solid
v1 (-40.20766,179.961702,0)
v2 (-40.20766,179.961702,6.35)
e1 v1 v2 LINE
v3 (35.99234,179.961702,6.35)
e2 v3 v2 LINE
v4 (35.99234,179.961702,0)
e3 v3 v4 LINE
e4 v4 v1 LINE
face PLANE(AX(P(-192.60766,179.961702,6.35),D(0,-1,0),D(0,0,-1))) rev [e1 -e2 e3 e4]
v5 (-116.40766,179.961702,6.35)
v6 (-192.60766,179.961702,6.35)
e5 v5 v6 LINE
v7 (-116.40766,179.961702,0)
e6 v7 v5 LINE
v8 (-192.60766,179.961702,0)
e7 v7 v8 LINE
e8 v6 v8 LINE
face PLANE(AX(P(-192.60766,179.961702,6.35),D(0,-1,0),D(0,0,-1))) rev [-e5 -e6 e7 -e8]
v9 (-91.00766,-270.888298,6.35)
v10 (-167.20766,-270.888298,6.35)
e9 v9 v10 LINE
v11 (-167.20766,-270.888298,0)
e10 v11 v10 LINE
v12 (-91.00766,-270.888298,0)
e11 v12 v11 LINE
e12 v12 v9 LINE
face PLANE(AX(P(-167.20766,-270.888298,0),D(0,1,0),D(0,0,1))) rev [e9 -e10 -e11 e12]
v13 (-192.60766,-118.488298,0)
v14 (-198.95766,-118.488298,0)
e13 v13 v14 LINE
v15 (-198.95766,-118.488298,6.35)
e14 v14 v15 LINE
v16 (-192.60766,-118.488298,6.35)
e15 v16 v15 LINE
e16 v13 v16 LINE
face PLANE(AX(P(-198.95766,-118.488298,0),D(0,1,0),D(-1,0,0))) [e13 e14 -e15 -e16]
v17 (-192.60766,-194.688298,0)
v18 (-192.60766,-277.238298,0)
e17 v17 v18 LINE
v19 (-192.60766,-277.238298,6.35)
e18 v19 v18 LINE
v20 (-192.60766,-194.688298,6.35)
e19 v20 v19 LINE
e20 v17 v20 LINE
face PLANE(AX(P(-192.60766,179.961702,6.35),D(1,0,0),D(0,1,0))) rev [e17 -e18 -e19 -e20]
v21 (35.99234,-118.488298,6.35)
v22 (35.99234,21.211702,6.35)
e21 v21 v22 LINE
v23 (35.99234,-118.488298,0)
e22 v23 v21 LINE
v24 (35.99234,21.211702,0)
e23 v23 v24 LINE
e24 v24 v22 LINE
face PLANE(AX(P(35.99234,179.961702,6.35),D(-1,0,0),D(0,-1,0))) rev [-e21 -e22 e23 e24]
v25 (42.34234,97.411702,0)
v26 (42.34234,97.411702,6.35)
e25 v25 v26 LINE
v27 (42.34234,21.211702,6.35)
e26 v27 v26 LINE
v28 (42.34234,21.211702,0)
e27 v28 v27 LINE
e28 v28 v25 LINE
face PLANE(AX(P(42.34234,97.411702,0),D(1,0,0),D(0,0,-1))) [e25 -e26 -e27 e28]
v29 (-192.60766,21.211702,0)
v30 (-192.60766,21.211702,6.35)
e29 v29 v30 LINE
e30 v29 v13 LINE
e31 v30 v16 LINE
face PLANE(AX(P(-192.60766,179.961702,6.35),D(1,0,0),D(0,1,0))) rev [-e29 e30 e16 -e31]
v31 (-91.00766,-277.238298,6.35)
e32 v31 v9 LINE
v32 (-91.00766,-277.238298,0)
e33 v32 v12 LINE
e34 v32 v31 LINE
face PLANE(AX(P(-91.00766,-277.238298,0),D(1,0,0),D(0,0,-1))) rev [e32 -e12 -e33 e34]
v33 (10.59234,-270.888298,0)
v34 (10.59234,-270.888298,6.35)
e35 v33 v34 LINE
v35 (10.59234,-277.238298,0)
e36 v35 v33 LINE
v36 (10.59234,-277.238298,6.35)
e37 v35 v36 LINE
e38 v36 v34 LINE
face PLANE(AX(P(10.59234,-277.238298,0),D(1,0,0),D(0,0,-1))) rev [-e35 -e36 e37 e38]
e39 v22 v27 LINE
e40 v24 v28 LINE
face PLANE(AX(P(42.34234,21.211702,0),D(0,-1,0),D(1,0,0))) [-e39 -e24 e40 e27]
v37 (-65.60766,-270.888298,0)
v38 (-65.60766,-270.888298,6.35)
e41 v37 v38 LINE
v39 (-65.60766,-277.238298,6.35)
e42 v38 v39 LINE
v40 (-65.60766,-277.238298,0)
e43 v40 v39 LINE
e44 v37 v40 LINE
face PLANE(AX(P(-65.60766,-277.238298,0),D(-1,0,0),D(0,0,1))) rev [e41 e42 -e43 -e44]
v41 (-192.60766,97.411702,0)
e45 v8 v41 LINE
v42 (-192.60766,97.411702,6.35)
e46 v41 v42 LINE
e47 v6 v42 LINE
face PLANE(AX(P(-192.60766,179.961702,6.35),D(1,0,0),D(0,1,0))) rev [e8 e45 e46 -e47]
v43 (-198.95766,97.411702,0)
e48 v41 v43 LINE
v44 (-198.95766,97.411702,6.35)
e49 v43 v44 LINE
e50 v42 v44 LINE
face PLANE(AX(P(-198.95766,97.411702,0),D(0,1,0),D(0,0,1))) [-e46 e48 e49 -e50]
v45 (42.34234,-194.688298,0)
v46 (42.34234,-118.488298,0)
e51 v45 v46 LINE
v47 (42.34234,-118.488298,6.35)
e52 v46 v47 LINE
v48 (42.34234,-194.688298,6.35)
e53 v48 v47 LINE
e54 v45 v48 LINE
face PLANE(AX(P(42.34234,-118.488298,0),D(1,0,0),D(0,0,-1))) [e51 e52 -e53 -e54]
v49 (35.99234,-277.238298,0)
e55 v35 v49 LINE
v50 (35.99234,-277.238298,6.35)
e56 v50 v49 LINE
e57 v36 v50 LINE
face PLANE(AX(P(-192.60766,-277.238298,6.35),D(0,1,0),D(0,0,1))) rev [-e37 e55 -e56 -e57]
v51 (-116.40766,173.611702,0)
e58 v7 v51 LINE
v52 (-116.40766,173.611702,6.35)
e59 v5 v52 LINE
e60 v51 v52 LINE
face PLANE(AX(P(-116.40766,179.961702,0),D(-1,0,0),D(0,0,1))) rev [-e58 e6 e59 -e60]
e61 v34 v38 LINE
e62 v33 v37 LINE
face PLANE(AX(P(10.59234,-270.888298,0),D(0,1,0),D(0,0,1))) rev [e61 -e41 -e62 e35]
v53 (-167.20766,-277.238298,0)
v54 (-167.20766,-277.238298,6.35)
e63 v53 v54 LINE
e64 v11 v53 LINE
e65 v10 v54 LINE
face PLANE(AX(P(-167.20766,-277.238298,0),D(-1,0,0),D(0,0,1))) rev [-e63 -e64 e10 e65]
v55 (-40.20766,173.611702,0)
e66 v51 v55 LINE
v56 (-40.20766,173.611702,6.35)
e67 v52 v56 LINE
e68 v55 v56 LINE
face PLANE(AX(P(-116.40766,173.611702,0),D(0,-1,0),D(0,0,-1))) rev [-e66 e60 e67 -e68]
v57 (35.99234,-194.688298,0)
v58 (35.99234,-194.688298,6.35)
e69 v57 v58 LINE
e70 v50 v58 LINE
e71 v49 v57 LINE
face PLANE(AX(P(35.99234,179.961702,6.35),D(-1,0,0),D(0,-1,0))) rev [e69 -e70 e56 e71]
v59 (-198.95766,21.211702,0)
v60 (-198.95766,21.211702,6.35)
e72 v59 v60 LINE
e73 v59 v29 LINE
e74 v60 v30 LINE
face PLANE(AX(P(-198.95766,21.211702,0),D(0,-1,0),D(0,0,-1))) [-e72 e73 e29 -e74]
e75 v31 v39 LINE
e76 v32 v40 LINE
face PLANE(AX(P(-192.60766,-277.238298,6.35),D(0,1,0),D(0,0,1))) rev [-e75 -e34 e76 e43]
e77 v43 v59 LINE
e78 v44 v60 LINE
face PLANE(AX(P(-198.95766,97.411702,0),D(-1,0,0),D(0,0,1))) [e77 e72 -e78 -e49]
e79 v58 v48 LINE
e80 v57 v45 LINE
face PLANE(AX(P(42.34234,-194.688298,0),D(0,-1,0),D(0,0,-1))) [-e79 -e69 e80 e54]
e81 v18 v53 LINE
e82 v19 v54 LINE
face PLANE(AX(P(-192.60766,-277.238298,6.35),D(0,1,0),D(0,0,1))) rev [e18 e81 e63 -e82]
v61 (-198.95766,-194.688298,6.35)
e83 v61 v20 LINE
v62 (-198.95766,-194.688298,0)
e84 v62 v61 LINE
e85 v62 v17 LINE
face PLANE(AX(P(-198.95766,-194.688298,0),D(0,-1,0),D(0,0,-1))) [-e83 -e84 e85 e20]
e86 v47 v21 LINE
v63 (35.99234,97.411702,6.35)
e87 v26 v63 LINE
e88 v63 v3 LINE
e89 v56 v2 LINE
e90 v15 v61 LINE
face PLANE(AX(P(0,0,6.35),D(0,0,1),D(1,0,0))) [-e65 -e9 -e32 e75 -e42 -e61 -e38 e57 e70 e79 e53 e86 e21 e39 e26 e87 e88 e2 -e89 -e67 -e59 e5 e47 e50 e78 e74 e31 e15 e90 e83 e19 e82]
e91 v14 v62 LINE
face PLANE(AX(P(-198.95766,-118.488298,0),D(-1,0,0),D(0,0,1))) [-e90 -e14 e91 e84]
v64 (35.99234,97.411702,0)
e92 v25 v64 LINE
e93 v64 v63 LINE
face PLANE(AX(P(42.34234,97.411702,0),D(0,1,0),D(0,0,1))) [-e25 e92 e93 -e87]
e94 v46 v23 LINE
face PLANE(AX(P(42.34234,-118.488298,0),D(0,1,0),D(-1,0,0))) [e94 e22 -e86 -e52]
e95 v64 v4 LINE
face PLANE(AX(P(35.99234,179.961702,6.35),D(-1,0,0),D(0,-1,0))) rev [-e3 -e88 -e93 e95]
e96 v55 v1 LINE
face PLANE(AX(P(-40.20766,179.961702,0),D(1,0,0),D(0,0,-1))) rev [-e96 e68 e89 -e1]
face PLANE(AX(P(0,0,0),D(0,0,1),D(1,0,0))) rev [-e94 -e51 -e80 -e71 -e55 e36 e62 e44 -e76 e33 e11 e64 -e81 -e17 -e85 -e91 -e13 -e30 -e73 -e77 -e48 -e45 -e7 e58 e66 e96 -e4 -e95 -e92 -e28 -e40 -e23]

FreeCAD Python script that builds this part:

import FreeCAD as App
import Part
import Sketcher
Q = App.Units.Quantity

doc = App.newDocument("Part")
body = doc.addObject("PartDesign::Body", "Body")

# Sketch on XY plane
sketch1 = doc.addObject("Sketcher::SketchObject", "Sketch")
body.addObject(sketch1)
sketch1.AttachmentSupport = (doc.XY_Plane, [""])
sketch1.MapMode = "FlatFace"
sketch1.addGeometry(Part.LineSegment(App.Vector(-193, 180, 0), App.Vector(-193, -277, 0)), False)
sketch1.addGeometry(Part.LineSegment(App.Vector(-193, -277, 0), App.Vector(36, -277, 0)), False)
sketch1.addGeometry(Part.LineSegment(App.Vector(36, -277, 0), App.Vector(36, 180, 0)), False)
sketch1.addGeometry(Part.LineSegment(App.Vector(36, 180, 0), App.Vector(-193, 180, 0)), False)
sketch1.addConstraint(Sketcher.Constraint("Coincident", 0, 2, 1, 1))
sketch1.addConstraint(Sketcher.Constraint("Coincident", 1, 2, 2, 1))
sketch1.addConstraint(Sketcher.Constraint("Coincident", 2, 2, 3, 1))
sketch1.addConstraint(Sketcher.Constraint("Coincident", 3, 2, 0, 1))
sketch1.addConstraint(Sketcher.Constraint("Vertical", 0))
sketch1.addConstraint(Sketcher.Constraint("Horizontal", 1))
sketch1.addConstraint(Sketcher.Constraint("Vertical", 2))
sketch1.addConstraint(Sketcher.Constraint("Horizontal", 3))
sketch1.addConstraint(Sketcher.Constraint("DistanceX", 1, 1, 1, 2, Q("9 in")))
sketch1.addConstraint(Sketcher.Constraint("DistanceY", 0, 2, 0, 1, Q("18 in")))
sketch1.addConstraint(Sketcher.Constraint("DistanceX", 0, 2, -1, 1, 192.60766))
sketch1.addConstraint(Sketcher.Constraint("DistanceY", 0, 2, -1, 1, 277.238298))
pad1 = doc.addObject("PartDesign::Pad", "Pad")
body.addObject(pad1)
pad1.Profile = sketch1
pad1.Length = Q("0.25 in")

# Sketch on XY plane
sketch2 = doc.addObject("Sketcher::SketchObject", "Sketch001")
body.addObject(sketch2)
sketch2.AttachmentSupport = (doc.XY_Plane, [""])
sketch2.MapMode = "FlatFace"
sketch2.AttachmentOffset = App.Placement(App.Vector(0, 0, 0.25 * 25.4), App.Rotation())
sketch2.addGeometry(Part.LineSegment(App.Vector(-199, 97, 0), App.Vector(-199, 21, 0)), False)
sketch2.addGeometry(Part.LineSegment(App.Vector(-199, 21, 0), App.Vector(-193, 21, 0)), False)
sketch2.addGeometry(Part.LineSegment(App.Vector(-193, 21, 0), App.Vector(-193, 97, 0)), False)
sketch2.addGeometry(Part.LineSegment(App.Vector(-193, 97, 0), App.Vector(-199, 97, 0)), False)
sketch2.addGeometry(Part.LineSegment(App.Vector(-199, -118, 0), App.Vector(-199, -195, 0)), False)
sketch2.addGeometry(Part.LineSegment(App.Vector(-199, -195, 0), App.Vector(-193, -195, 0)), False)
sketch2.addGeometry(Part.LineSegment(App.Vector(-193, -195, 0), App.Vector(-193, -118, 0)), False)
sketch2.addGeometry(Part.LineSegment(App.Vector(-193, -118, 0), App.Vector(-199, -118, 0)), False)
sketch2.addGeometry(Part.LineSegment(App.Vector(36, -118, 0), App.Vector(36, -195, 0)), False)
sketch2.addGeometry(Part.LineSegment(App.Vector(36, -195, 0), App.Vector(42, -195, 0)), False)
sketch2.addGeometry(Part.LineSegment(App.Vector(42, -195, 0), App.Vector(42, -118, 0)), False)
sketch2.addGeometry(Part.LineSegment(App.Vector(42, -118, 0), App.Vector(36, -118, 0)), False)
sketch2.addGeometry(Part.LineSegment(App.Vector(36, 97, 0), App.Vector(36, 21, 0)), False)
sketch2.addGeometry(Part.LineSegment(App.Vector(36, 21, 0), App.Vector(42, 21, 0)), False)
sketch2.addGeometry(Part.LineSegment(App.Vector(42, 21, 0), App.Vector(42, 97, 0)), False)
sketch2.addGeometry(Part.LineSegment(App.Vector(42, 97, 0), App.Vector(36, 97, 0)), False)
sketch2.addConstraint(Sketcher.Constraint("Coincident", 0, 2, 1, 1))
sketch2.addConstraint(Sketcher.Constraint("Coincident", 1, 2, 2, 1))
sketch2.addConstraint(Sketcher.Constraint("Coincident", 2, 2, 3, 1))
sketch2.addConstraint(Sketcher.Constraint("Coincident", 3, 2, 0, 1))
sketch2.addConstraint(Sketcher.Constraint("Coincident", 4, 2, 5, 1))
sketch2.addConstraint(Sketcher.Constraint("Coincident", 5, 2, 6, 1))
sketch2.addConstraint(Sketcher.Constraint("Coincident", 6, 2, 7, 1))
sketch2.addConstraint(Sketcher.Constraint("Coincident", 7, 2, 4, 1))
sketch2.addConstraint(Sketcher.Constraint("Coincident", 8, 2, 9, 1))
sketch2.addConstraint(Sketcher.Constraint("Coincident", 9, 2, 10, 1))
sketch2.addConstraint(Sketcher.Constraint("Coincident", 10, 2, 11, 1))
sketch2.addConstraint(Sketcher.Constraint("Coincident", 11, 2, 8, 1))
sketch2.addConstraint(Sketcher.Constraint("Coincident", 12, 2, 13, 1))
sketch2.addConstraint(Sketcher.Constraint("Coincident", 13, 2, 14, 1))
sketch2.addConstraint(Sketcher.Constraint("Coincident", 14, 2, 15, 1))
sketch2.addConstraint(Sketcher.Constraint("Coincident", 15, 2, 12, 1))
sketch2.addConstraint(Sketcher.Constraint("Vertical", 0))
sketch2.addConstraint(Sketcher.Constraint("Horizontal", 1))
sketch2.addConstraint(Sketcher.Constraint("Vertical", 2))
sketch2.addConstraint(Sketcher.Constraint("Horizontal", 3))
sketch2.addConstraint(Sketcher.Constraint("Vertical", 4))
sketch2.addConstraint(Sketcher.Constraint("Horizontal", 5))
sketch2.addConstraint(Sketcher.Constraint("Vertical", 6))
sketch2.addConstraint(Sketcher.Constraint("Horizontal", 7))
sketch2.addConstraint(Sketcher.Constraint("Vertical", 8))
sketch2.addConstraint(Sketcher.Constraint("Horizontal", 9))
sketch2.addConstraint(Sketcher.Constraint("Vertical", 10))
sketch2.addConstraint(Sketcher.Constraint("Horizontal", 11))
sketch2.addConstraint(Sketcher.Constraint("Vertical", 12))
sketch2.addConstraint(Sketcher.Constraint("Horizontal", 13))
sketch2.addConstraint(Sketcher.Constraint("Vertical", 14))
sketch2.addConstraint(Sketcher.Constraint("Horizontal", 15))
sketch2.addConstraint(Sketcher.Constraint("Horizontal", 5, 2, 8, 2))
sketch2.addConstraint(Sketcher.Constraint("Horizontal", 7, 2, 10, 2))
sketch2.addConstraint(Sketcher.Constraint("Horizontal", 1, 2, 12, 2))
sketch2.addConstraint(Sketcher.Constraint("Horizontal", 3, 2, 14, 2))
sketch2.addConstraint(Sketcher.Constraint("Vertical", 3, 2, 4, 2))
sketch2.addConstraint(Sketcher.Constraint("Vertical", 2, 2, 5, 2))
sketch2.addConstraint(Sketcher.Constraint("Vertical", 11, 2, 12, 2))
sketch2.addConstraint(Sketcher.Constraint("Vertical", 10, 2, 13, 2))
sketch2.addConstraint(Sketcher.Constraint("Equal", 7, 9))
sketch2.addConstraint(Sketcher.Constraint("Equal", 2, 4))
sketch2.addConstraint(Sketcher.Constraint("DistanceY", 0, 2, 0, 1, Q("3 in")))
sketch2.addConstraint(Sketcher.Constraint("DistanceX", 5, 2, 8, 2, Q("9 in")))
sketch2.addConstraint(Sketcher.Constraint("DistanceX", 1, 1, 1, 2, Q("0.25 in")))
sketch2.addConstraint(Sketcher.Constraint("DistanceY", 4, 2, 0, 2, Q("8.5 in")))
sketch2.addConstraint(Sketcher.Constraint("DistanceX", 0, 2, -1, 1, 198.95766))
sketch2.addConstraint(Sketcher.Constraint("DistanceY", -1, 1, 0, 2, 21.211702))
pad2 = doc.addObject("PartDesign::Pad", "Pad001")
body.addObject(pad2)
pad2.Profile = sketch2
pad2.Type = "UpToLast"
pad2.Reversed = True

# Sketch on XY plane
sketch3 = doc.addObject("Sketcher::SketchObject", "Sketch002")
body.addObject(sketch3)
sketch3.AttachmentSupport = (doc.XY_Plane, [""])
sketch3.MapMode = "FlatFace"
sketch3.AttachmentOffset = App.Placement(App.Vector(0, 0, 0.25 * 25.4), App.Rotation())
sketch3.addGeometry(Part.LineSegment(App.Vector(-167, -271, 0), App.Vector(-167, -277, 0)), False)
sketch3.addGeometry(Part.LineSegment(App.Vector(-167, -277, 0), App.Vector(-91, -277, 0)), False)
sketch3.addGeometry(Part.LineSegment(App.Vector(-91, -277, 0), App.Vector(-91, -271, 0)), False)
sketch3.addGeometry(Part.LineSegment(App.Vector(-91, -271, 0), App.Vector(-167, -271, 0)), False)
sketch3.addGeometry(Part.LineSegment(App.Vector(-66, -271, 0), App.Vector(-66, -277, 0)), False)
sketch3.addGeometry(Part.LineSegment(App.Vector(-66, -277, 0), App.Vector(11, -277, 0)), False)
sketch3.addGeometry(Part.LineSegment(App.Vector(11, -277, 0), App.Vector(11, -271, 0)), False)
sketch3.addGeometry(Part.LineSegment(App.Vector(11, -271, 0), App.Vector(-66, -271, 0)), False)
sketch3.addGeometry(Part.LineSegment(App.Vector(-116, 180, 0), App.Vector(-116, 174, 0)), False)
sketch3.addGeometry(Part.LineSegment(App.Vector(-116, 174, 0), App.Vector(-40, 174, 0)), False)
sketch3.addGeometry(Part.LineSegment(App.Vector(-40, 174, 0), App.Vector(-40, 180, 0)), False)
sketch3.addGeometry(Part.LineSegment(App.Vector(-40, 180, 0), App.Vector(-116, 180, 0)), False)
sketch3.addConstraint(Sketcher.Constraint("Coincident", 0, 2, 1, 1))
sketch3.addConstraint(Sketcher.Constraint("Coincident", 1, 2, 2, 1))
sketch3.addConstraint(Sketcher.Constraint("Coincident", 2, 2, 3, 1))
sketch3.addConstraint(Sketcher.Constraint("Coincident", 3, 2, 0, 1))
sketch3.addConstraint(Sketcher.Constraint("Coincident", 4, 2, 5, 1))
sketch3.addConstraint(Sketcher.Constraint("Coincident", 5, 2, 6, 1))
sketch3.addConstraint(Sketcher.Constraint("Coincident", 6, 2, 7, 1))
sketch3.addConstraint(Sketcher.Constraint("Coincident", 7, 2, 4, 1))
sketch3.addConstraint(Sketcher.Constraint("Coincident", 8, 2, 9, 1))
sketch3.addConstraint(Sketcher.Constraint("Coincident", 9, 2, 10, 1))
sketch3.addConstraint(Sketcher.Constraint("Coincident", 10, 2, 11, 1))
sketch3.addConstraint(Sketcher.Constraint("Coincident", 11, 2, 8, 1))
sketch3.addConstraint(Sketcher.Constraint("Vertical", 0))
sketch3.addConstraint(Sketcher.Constraint("Horizontal", 1))
sketch3.addConstraint(Sketcher.Constraint("Vertical", 2))
sketch3.addConstraint(Sketcher.Constraint("Horizontal", 3))
sketch3.addConstraint(Sketcher.Constraint("Vertical", 4))
sketch3.addConstraint(Sketcher.Constraint("Horizontal", 5))
sketch3.addConstraint(Sketcher.Constraint("Vertical", 6))
sketch3.addConstraint(Sketcher.Constraint("Horizontal", 7))
sketch3.addConstraint(Sketcher.Constraint("Vertical", 8))
sketch3.addConstraint(Sketcher.Constraint("Horizontal", 9))
sketch3.addConstraint(Sketcher.Constraint("Vertical", 10))
sketch3.addConstraint(Sketcher.Constraint("Horizontal", 11))
sketch3.addConstraint(Sketcher.Constraint("Horizontal", 1, 2, 4, 2))
sketch3.addConstraint(Sketcher.Constraint("Horizontal", 3, 2, 6, 2))
sketch3.addConstraint(Sketcher.Constraint("Equal", 3, 5))
sketch3.addConstraint(Sketcher.Constraint("Equal", 7, 9))
sketch3.addConstraint(Sketcher.Constraint("Equal", 6, 8))
sketch3.addConstraint(Sketcher.Constraint("DistanceX", 1, 1, 1, 2, Q("3 in")))
sketch3.addConstraint(Sketcher.Constraint("DistanceX", 1, 2, 4, 2, Q("1 in")))
sketch3.addConstraint(Sketcher.Constraint("DistanceX", 8, 2, 2, 2, Q("1 in")))
sketch3.addConstraint(Sketcher.Constraint("DistanceY", 0, 2, 0, 1, Q("0.25 in")))
sketch3.addConstraint(Sketcher.Constraint("DistanceY", 2, 2, 8, 2, Q("17.5 in")))
sketch3.addConstraint(Sketcher.Constraint("DistanceX", 0, 2, -1, 1, 167.20766))
sketch3.addConstraint(Sketcher.Constraint("DistanceY", 0, 2, -1, 1, 277.238298))
pocket1 = doc.addObject("PartDesign::Pocket", "Pocket")
body.addObject(pocket1)
pocket1.Profile = sketch3
pocket1.Length = Q("0.25 in")

doc.recompute()
